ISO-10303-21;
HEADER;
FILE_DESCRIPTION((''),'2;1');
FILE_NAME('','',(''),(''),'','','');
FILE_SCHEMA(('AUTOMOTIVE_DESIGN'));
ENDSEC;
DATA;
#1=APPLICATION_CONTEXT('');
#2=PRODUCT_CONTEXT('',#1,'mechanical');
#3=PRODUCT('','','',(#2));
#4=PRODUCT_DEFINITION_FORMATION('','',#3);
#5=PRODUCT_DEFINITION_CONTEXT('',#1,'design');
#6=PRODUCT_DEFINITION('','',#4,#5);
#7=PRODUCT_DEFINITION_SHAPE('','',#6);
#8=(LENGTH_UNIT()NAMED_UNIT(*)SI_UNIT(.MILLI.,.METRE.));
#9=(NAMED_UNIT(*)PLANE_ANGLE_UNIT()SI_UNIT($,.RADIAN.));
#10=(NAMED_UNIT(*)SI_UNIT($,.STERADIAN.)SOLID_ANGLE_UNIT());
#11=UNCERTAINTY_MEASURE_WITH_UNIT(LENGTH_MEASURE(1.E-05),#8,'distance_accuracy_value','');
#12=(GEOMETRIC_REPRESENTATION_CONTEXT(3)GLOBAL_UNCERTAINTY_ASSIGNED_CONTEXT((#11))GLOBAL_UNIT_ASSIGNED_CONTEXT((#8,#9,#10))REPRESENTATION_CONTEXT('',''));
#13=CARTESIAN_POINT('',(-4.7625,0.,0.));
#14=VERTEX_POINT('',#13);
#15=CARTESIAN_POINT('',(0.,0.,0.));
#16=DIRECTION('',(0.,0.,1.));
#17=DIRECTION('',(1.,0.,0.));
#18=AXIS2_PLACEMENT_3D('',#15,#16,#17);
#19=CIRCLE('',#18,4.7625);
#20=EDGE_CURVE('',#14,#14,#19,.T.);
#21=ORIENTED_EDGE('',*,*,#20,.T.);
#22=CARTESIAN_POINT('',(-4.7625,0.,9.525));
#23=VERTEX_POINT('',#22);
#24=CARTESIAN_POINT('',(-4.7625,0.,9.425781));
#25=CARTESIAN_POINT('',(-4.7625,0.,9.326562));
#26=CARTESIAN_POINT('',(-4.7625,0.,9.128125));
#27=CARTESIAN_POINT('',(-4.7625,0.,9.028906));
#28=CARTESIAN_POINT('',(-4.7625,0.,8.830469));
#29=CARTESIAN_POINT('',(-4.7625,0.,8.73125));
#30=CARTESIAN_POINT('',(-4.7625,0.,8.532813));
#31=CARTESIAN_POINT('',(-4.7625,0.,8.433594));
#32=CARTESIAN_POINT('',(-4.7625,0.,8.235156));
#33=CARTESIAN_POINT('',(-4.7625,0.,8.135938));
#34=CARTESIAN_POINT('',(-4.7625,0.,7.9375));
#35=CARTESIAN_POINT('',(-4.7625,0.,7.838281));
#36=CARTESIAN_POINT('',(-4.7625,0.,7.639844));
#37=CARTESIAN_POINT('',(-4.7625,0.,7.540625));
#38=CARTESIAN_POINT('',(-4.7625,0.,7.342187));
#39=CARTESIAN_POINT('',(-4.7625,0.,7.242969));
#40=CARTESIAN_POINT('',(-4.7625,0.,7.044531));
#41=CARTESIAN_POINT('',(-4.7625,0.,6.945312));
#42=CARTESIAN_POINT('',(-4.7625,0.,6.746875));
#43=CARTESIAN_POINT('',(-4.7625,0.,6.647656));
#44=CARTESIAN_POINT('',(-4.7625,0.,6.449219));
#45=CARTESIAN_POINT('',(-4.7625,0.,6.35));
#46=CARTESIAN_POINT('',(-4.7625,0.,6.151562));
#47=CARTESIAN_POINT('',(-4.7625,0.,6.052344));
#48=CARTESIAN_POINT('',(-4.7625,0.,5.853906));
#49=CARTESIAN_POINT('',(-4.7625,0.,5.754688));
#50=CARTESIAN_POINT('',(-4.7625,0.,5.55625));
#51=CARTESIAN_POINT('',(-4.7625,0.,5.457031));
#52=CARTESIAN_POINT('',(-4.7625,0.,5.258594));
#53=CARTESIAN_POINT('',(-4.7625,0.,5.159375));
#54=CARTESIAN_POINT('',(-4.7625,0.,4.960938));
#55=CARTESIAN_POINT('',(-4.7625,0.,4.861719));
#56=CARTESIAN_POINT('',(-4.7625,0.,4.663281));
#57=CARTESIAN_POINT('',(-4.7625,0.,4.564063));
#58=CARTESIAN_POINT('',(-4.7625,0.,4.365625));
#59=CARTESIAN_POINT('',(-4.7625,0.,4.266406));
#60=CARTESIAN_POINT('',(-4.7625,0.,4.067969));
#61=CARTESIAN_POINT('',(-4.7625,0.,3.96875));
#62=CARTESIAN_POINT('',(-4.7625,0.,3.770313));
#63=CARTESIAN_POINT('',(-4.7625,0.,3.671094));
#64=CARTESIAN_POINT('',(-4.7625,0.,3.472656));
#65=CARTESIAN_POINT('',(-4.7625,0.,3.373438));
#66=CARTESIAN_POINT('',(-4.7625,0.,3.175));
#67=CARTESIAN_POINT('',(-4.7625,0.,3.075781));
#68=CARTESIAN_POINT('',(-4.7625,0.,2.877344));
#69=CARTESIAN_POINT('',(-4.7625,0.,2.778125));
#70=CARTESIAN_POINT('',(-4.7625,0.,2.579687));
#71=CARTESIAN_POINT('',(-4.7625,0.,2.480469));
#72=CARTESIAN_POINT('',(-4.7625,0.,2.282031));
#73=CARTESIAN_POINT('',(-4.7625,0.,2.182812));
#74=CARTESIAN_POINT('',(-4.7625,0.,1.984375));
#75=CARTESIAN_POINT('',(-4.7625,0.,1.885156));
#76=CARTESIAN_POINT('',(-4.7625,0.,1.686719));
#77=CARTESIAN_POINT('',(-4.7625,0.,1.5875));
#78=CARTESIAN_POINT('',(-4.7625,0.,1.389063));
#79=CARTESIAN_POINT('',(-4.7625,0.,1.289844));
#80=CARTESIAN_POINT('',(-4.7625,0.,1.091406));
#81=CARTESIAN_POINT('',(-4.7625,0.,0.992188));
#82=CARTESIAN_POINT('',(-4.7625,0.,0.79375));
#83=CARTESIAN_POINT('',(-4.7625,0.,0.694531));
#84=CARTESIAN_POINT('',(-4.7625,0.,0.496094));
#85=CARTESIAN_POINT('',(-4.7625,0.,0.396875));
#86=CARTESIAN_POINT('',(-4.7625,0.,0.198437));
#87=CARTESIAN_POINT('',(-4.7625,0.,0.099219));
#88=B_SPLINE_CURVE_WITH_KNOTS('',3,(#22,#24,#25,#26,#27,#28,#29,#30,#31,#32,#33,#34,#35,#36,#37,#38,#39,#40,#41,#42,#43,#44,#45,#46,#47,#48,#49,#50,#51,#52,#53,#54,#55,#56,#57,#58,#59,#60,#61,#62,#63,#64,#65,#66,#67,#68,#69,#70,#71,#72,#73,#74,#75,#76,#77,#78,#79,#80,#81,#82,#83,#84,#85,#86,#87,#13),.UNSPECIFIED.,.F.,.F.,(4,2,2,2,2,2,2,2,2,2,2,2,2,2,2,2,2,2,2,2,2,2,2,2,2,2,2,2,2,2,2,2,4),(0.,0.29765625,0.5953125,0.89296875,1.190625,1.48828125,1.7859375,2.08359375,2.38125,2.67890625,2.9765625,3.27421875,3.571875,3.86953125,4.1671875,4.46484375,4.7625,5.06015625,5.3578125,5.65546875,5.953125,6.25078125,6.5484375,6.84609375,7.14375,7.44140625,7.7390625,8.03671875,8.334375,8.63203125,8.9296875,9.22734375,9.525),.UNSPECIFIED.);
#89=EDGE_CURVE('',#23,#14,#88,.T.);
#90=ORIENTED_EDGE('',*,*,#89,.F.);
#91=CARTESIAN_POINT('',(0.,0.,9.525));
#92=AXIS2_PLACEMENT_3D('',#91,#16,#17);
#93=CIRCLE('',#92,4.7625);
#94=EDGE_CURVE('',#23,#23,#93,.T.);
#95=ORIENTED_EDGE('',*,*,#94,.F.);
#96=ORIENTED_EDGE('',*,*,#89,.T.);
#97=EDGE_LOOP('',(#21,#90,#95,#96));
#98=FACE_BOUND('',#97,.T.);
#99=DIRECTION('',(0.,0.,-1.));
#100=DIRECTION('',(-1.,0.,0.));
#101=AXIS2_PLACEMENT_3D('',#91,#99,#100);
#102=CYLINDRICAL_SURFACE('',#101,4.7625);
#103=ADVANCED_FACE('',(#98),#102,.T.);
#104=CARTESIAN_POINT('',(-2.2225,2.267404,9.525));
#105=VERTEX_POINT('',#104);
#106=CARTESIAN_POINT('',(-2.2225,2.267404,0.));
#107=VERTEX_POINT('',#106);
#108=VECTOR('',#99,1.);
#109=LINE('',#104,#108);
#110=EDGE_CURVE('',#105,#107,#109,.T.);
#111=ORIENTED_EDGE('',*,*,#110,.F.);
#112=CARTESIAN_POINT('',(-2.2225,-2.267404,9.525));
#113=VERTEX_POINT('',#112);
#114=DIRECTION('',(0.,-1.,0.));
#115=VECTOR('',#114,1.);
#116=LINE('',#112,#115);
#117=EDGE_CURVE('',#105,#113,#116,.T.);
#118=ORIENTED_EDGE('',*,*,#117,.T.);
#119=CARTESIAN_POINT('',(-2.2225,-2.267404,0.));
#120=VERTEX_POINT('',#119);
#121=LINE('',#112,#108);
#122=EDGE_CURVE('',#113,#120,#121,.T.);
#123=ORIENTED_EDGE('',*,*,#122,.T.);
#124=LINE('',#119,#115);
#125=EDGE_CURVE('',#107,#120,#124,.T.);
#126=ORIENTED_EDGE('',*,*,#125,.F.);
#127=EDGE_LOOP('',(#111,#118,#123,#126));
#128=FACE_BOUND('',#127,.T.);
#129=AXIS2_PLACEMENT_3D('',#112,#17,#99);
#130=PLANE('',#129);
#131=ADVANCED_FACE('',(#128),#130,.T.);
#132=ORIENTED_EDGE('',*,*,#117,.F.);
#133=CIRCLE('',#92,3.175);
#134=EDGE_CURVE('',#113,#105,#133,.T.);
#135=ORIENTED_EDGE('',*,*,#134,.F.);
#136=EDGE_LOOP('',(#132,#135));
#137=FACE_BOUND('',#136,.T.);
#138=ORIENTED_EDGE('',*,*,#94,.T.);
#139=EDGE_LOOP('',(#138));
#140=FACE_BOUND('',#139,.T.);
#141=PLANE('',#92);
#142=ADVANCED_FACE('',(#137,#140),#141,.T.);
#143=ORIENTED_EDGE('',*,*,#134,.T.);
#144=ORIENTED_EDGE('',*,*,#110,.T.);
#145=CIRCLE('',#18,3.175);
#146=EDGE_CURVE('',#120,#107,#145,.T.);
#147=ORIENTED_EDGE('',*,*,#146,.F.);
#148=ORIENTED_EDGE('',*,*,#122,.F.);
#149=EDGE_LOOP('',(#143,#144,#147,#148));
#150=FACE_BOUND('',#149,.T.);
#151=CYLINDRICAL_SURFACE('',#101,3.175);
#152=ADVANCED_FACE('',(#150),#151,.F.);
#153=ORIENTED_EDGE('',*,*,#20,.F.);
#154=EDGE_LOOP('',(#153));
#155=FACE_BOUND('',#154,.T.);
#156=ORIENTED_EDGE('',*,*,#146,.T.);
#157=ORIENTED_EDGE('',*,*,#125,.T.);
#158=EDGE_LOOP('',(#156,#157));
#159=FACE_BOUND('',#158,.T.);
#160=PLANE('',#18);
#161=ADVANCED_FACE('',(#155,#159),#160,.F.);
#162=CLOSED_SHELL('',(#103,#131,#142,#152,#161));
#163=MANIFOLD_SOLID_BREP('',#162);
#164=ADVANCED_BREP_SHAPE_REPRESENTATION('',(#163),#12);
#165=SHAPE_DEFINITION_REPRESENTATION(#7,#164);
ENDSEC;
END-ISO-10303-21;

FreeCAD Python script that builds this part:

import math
import FreeCAD as App
import Part
import Sketcher
from FreeCAD import Vector
Q = App.Units.Quantity

doc = App.newDocument("Part")
body = doc.addObject("PartDesign::Body", "Body")

sketch1 = doc.addObject("Sketcher::SketchObject", "Sketch")
body.addObject(sketch1)
sketch1.AttachmentSupport = (doc.XY_Plane, [""])
sketch1.MapMode = "FlatFace"
sketch1.addGeometry(Part.Circle(Vector(0, 0, 0), Vector(0, 0, 1), 4.8), False)
sketch1.addGeometry(Part.ArcOfCircle(Part.Circle(Vector(0, 0, 0), Vector(0, 0, 1), 3.2), math.radians(-134), math.radians(134)), False)
sketch1.addGeometry(Part.LineSegment(Vector(-2.2, -2.3, 0), Vector(-2.2, 2.3, 0)), False)
sketch1.addConstraint(Sketcher.Constraint("Coincident", 1, 1, 2, 1))
sketch1.addConstraint(Sketcher.Constraint("Coincident", 2, 2, 1, 2))
sketch1.addConstraint(Sketcher.Constraint("Vertical", 2))
sketch1.addConstraint(Sketcher.Constraint("Coincident", 0, 3, -1, 1))
sketch1.addConstraint(Sketcher.Constraint("Coincident", 1, 3, -1, 1))
sketch1.addConstraint(Sketcher.Constraint("Diameter", 0, Q("0.375 in")))
sketch1.addConstraint(Sketcher.Constraint("Radius", 1, Q("0.125 in")))
sketch1.addConstraint(Sketcher.Constraint("DistanceX", 1, 1, -1, 1, Q("0.0875 in")))
pad1 = doc.addObject("PartDesign::Pad", "Pad")
body.addObject(pad1)
pad1.Profile = sketch1
pad1.Length = Q("0.375 in")

doc.recompute()
